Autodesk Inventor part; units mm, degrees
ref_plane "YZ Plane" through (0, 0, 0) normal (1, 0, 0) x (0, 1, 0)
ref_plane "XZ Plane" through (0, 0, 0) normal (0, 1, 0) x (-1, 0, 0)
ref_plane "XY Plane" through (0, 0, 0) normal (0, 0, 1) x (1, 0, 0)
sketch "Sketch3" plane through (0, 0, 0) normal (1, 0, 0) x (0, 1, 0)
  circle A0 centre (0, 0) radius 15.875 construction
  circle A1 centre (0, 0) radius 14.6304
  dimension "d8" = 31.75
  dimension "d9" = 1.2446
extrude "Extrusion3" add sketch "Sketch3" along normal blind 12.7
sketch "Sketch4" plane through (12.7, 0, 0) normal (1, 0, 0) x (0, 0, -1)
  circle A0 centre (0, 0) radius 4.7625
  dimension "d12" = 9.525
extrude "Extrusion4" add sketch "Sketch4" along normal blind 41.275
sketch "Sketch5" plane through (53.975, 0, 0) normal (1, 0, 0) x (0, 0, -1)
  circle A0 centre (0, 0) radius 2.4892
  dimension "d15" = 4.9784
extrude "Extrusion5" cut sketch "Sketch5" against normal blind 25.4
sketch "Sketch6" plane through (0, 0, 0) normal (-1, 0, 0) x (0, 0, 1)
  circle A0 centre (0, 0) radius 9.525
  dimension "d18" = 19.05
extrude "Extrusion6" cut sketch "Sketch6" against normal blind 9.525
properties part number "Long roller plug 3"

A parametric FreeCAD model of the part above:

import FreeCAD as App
import Part
import Sketcher
Q = App.Units.Quantity

doc = App.newDocument("Part")
body = doc.addObject("PartDesign::Body", "Body")

# Sketch on YZ plane
sketch1 = doc.addObject("Sketcher::SketchObject", "Sketch")
body.addObject(sketch1)
sketch1.AttachmentSupport = (doc.YZ_Plane, [""])
sketch1.MapMode = "FlatFace"
sketch1.addGeometry(Part.Circle(App.Vector(0, 0, 0), App.Vector(0, 0, 1), 15), False)
sketch1.addConstraint([
    Sketcher.Constraint("Coincident", 0, 3, -1, 1),
    Sketcher.Constraint("Diameter", 0, Q("1.152 in")),
])
pad1 = doc.addObject("PartDesign::Pad", "Pad")
body.addObject(pad1)
pad1.Profile = sketch1
pad1.Length = Q("0.5 in")

# Sketch on YZ plane
sketch2 = doc.addObject("Sketcher::SketchObject", "Sketch001")
body.addObject(sketch2)
sketch2.AttachmentSupport = (doc.YZ_Plane, [""])
sketch2.MapMode = "FlatFace"
sketch2.AttachmentOffset = App.Placement(App.Vector(0, 0, 0.5 * 25.4), App.Rotation())
sketch2.addGeometry(Part.Circle(App.Vector(0, 0, 0), App.Vector(0, 0, 1), 4.8), False)
sketch2.addConstraint([
    Sketcher.Constraint("Coincident", 0, 3, -1, 1),
    Sketcher.Constraint("Diameter", 0, Q("0.375 in")),
])
pad2 = doc.addObject("PartDesign::Pad", "Pad001")
body.addObject(pad2)
pad2.Profile = sketch2
pad2.Length = Q("1.625 in")

# Sketch on YZ plane
sketch3 = doc.addObject("Sketcher::SketchObject", "Sketch002")
body.addObject(sketch3)
sketch3.AttachmentSupport = (doc.YZ_Plane, [""])
sketch3.MapMode = "FlatFace"
sketch3.AttachmentOffset = App.Placement(App.Vector(0, 0, 2.125 * 25.4), App.Rotation())
sketch3.addGeometry(Part.Circle(App.Vector(0, 0, 0), App.Vector(0, 0, 1), 2.5), False)
sketch3.addConstraint([
    Sketcher.Constraint("Coincident", 0, 3, -1, 1),
    Sketcher.Constraint("Diameter", 0, Q("0.196 in")),
])
pocket1 = doc.addObject("PartDesign::Pocket", "Pocket")
body.addObject(pocket1)
pocket1.Profile = sketch3
pocket1.Length = Q("1 in")

# Sketch on YZ plane
sketch4 = doc.addObject("Sketcher::SketchObject", "Sketch003")
body.addObject(sketch4)
sketch4.AttachmentSupport = (doc.YZ_Plane, [""])
sketch4.MapMode = "FlatFace"
sketch4.addGeometry(Part.Circle(App.Vector(0, 0, 0), App.Vector(0, 0, 1), 10), False)
sketch4.addConstraint([
    Sketcher.Constraint("Coincident", 0, 3, -1, 1),
    Sketcher.Constraint("Diameter", 0, Q("0.75 in")),
])
pocket2 = doc.addObject("PartDesign::Pocket", "Pocket001")
body.addObject(pocket2)
pocket2.Profile = sketch4
pocket2.Length = Q("0.375 in")
pocket2.Reversed = True

doc.recompute()
